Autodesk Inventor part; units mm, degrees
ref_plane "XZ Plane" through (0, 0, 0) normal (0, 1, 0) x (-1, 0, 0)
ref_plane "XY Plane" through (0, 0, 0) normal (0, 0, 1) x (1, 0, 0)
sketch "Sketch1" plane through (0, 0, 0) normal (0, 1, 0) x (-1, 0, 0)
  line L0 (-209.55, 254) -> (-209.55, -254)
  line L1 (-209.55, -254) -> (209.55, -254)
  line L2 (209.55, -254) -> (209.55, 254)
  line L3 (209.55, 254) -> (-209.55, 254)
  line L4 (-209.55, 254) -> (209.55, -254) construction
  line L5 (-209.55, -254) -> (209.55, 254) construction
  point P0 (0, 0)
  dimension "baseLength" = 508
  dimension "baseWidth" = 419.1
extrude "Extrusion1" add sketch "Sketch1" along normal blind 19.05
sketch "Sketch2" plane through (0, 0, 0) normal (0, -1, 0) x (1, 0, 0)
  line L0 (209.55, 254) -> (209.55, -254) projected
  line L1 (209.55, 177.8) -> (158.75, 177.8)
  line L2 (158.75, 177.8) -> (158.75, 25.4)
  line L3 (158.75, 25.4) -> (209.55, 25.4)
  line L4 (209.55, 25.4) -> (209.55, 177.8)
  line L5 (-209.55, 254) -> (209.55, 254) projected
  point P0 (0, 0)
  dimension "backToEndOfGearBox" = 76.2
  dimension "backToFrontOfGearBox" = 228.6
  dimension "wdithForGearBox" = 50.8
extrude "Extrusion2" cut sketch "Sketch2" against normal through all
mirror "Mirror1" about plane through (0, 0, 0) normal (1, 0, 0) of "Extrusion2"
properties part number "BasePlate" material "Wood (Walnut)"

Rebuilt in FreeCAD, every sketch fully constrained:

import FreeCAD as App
import Part
import Sketcher
Q = App.Units.Quantity


def add_polygon(sketch, points):
    """Adds a closed chain of lines whose ends are joined by coincident constraints."""
    first, n = sketch.GeometryCount, len(points)
    for a, b in zip(points, points[1:] + points[:1]):
        sketch.addGeometry(Part.LineSegment(App.Vector(*a, 0), App.Vector(*b, 0)), False)
    for i in range(n):
        sketch.addConstraint(Sketcher.Constraint("Coincident", first + i, 2, first + (i + 1) % n, 1))

doc = App.newDocument("Part")
body = doc.addObject("PartDesign::Body", "Body")

# Sketch on XZ plane
sketch1 = doc.addObject("Sketcher::SketchObject", "Sketch")
body.addObject(sketch1)
sketch1.AttachmentSupport = (doc.XZ_Plane, [""])
sketch1.MapMode = "FlatFace"
add_polygon(sketch1, [(-209.55, 254), (209.55, 254), (209.55, -254), (-209.55, -254)])  # lines 0-3
sketch1.addConstraint([
    Sketcher.Constraint("Horizontal", 0),
    Sketcher.Constraint("Vertical", 1),
    Sketcher.Constraint("Horizontal", 2),
    Sketcher.Constraint("Vertical", 3),
    Sketcher.Constraint("Symmetric", 0, 2, 2, 2, -1, 1),
    Sketcher.Constraint("DistanceY", 1, 2, 1, 1, Q("20 in")),
    Sketcher.Constraint("DistanceX", 0, 1, 0, 2, Q("16.5 in")),
])
pad1 = doc.addObject("PartDesign::Pad", "Pad")
body.addObject(pad1)
pad1.Profile = sketch1
pad1.Length = Q("0.75 in")
pad1.Reversed = True

# Sketch on XZ plane
sketch2 = doc.addObject("Sketcher::SketchObject", "Sketch001")
body.addObject(sketch2)
sketch2.AttachmentSupport = (doc.XZ_Plane, [""])
sketch2.MapMode = "FlatFace"
add_polygon(sketch2, [(209.55, 25.4), (209.55, 177.8), (158.75, 177.8), (158.75, 25.4)])  # lines 0-3
sketch2.addConstraint([
    Sketcher.Constraint("Vertical", 0),
    Sketcher.Constraint("Horizontal", 1),
    Sketcher.Constraint("Vertical", 2),
    Sketcher.Constraint("Horizontal", 3),
    Sketcher.Constraint("DistanceX", 1, 2, 1, 1, Q("2 in")),
    Sketcher.Constraint("DistanceY", 0, 1, 0, 2, Q("6 in")),
    Sketcher.Constraint("DistanceY", -1, 1, 0, 2, Q("7 in")),
    Sketcher.Constraint("DistanceX", -1, 1, 0, 2, Q("8.25 in")),
])
pocket1 = doc.addObject("PartDesign::Pocket", "Pocket")
body.addObject(pocket1)
pocket1.Profile = sketch2
pocket1.Type = "ThroughAll"
doc.recompute()

mirrored = doc.addObject("PartDesign::Mirrored", "Mirrored")
body.addObject(mirrored)
mirrored.Originals = [pocket1]
mirrored.MirrorPlane = (doc.YZ_Plane, [""])
body.Tip = mirrored

doc.recompute()
